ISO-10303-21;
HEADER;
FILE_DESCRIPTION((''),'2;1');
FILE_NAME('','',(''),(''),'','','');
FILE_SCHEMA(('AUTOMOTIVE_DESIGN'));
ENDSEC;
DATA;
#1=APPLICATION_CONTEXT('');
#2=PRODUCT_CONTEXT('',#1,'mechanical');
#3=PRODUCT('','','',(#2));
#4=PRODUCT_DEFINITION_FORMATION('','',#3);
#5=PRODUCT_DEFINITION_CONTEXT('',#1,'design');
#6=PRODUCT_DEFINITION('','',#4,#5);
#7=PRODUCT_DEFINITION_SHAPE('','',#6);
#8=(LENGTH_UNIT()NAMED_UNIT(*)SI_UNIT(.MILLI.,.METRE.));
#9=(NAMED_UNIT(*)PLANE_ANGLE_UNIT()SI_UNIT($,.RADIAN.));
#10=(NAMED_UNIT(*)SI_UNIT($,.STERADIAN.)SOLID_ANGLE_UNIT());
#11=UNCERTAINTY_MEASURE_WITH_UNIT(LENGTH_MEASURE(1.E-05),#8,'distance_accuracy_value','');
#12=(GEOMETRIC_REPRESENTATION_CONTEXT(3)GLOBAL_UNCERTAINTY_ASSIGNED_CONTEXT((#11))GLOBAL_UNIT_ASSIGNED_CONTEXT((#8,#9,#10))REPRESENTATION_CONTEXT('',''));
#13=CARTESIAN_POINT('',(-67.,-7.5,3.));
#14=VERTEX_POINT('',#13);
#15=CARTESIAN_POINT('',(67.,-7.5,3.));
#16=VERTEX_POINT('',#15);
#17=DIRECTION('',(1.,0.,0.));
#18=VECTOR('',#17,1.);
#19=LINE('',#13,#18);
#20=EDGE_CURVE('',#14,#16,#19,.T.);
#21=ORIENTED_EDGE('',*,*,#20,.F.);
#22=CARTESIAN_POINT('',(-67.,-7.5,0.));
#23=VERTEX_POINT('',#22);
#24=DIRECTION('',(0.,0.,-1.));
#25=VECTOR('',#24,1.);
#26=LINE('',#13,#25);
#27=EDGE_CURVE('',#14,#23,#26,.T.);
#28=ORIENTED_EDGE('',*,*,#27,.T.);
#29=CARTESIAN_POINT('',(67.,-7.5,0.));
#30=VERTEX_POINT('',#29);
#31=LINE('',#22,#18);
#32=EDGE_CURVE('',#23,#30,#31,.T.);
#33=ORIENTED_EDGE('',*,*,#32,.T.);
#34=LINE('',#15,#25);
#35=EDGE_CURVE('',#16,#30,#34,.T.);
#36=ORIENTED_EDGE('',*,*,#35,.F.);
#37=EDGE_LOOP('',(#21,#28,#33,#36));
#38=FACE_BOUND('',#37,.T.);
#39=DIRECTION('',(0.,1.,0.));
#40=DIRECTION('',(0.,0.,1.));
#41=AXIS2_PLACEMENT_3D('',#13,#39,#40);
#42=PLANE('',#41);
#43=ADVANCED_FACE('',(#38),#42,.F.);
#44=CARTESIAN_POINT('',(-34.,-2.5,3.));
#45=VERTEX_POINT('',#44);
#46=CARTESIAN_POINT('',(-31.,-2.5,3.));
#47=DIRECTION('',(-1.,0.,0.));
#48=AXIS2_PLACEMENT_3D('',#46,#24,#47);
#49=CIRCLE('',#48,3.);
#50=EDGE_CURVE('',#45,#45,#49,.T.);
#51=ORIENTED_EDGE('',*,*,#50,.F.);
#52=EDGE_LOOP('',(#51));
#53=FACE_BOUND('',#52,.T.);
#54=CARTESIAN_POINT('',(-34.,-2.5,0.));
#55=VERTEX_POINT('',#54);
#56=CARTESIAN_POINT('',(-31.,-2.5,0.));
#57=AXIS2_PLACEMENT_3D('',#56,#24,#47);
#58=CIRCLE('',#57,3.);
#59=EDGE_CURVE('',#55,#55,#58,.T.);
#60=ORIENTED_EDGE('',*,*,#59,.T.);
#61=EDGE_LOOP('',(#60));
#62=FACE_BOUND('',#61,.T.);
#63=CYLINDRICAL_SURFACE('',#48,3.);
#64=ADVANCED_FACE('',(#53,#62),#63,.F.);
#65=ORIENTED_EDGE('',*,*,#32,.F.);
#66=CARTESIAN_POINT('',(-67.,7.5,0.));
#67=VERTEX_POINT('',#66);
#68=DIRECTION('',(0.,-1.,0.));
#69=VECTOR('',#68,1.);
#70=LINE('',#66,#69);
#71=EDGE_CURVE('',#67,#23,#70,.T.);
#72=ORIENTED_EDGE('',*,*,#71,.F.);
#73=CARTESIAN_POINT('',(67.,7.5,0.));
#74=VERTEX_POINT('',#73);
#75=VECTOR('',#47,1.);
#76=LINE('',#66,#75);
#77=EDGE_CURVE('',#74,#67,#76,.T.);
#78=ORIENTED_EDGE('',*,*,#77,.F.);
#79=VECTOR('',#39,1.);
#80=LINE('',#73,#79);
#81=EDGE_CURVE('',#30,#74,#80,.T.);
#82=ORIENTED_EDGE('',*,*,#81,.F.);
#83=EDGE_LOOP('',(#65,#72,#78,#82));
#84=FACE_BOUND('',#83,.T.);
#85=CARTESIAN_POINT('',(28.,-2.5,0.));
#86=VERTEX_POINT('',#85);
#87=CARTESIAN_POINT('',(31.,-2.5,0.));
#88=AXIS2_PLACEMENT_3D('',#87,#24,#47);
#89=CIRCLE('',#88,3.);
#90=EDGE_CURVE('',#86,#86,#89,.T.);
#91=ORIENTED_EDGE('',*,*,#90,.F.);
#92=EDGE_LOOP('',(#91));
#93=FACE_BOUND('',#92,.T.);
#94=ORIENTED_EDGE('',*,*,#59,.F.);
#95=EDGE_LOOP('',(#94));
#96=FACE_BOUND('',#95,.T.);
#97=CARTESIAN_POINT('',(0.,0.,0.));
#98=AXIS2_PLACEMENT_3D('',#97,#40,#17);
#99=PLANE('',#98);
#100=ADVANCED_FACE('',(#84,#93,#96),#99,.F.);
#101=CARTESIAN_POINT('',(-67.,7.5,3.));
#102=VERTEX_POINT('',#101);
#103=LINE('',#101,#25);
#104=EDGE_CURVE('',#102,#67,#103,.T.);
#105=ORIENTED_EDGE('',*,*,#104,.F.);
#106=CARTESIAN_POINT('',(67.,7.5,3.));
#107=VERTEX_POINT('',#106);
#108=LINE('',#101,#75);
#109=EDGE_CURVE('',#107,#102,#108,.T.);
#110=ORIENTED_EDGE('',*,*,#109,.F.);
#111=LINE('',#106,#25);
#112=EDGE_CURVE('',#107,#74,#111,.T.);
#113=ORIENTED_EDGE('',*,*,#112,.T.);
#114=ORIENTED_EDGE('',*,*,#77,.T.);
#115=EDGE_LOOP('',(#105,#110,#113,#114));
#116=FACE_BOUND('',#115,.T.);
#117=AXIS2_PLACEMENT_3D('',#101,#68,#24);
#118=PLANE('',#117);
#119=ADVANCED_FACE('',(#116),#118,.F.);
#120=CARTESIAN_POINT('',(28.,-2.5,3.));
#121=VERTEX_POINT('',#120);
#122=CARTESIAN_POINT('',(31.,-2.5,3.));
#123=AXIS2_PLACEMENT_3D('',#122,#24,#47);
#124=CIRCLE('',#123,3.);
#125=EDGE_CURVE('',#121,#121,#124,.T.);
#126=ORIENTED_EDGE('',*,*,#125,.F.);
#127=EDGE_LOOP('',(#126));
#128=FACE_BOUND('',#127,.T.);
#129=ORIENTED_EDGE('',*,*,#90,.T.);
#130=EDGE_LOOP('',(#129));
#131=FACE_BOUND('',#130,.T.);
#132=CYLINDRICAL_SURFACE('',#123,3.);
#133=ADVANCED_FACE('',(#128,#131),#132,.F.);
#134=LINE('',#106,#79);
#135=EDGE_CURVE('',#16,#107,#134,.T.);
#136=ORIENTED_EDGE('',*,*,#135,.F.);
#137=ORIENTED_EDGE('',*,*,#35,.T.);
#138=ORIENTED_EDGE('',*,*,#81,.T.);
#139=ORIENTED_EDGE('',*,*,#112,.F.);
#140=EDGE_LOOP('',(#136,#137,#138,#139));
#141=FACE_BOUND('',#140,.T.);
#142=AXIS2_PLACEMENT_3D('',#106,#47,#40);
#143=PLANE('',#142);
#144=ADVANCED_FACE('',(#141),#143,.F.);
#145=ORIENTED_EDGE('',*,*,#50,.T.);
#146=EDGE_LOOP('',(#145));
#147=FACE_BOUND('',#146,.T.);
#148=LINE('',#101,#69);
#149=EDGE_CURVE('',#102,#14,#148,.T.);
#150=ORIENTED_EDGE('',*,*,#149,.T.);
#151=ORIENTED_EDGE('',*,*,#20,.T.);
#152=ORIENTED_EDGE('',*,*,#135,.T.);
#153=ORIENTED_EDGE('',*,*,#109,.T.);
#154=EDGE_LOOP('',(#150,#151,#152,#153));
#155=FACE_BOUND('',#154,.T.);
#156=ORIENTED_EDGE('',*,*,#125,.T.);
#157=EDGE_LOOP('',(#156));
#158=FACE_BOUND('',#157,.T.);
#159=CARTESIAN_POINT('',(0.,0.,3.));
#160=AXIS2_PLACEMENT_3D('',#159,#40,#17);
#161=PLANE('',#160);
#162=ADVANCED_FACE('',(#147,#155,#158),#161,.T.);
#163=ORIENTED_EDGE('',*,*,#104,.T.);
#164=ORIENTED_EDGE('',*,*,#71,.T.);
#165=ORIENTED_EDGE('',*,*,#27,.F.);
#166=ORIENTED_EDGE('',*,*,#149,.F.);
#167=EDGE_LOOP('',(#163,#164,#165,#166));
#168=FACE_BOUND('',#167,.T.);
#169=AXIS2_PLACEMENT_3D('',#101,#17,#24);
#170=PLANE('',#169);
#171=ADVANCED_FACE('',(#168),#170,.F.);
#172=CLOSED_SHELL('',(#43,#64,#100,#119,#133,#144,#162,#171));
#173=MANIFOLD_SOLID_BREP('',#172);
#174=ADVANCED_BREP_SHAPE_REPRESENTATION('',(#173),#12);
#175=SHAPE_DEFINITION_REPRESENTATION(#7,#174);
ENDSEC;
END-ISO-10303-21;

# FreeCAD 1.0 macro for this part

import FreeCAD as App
import Part
import Sketcher


def add_polygon(sketch, points):
    """Adds a closed chain of lines whose ends are joined by coincident constraints."""
    first, n = sketch.GeometryCount, len(points)
    for a, b in zip(points, points[1:] + points[:1]):
        sketch.addGeometry(Part.LineSegment(App.Vector(*a, 0), App.Vector(*b, 0)), False)
    for i in range(n):
        sketch.addConstraint(Sketcher.Constraint("Coincident", first + i, 2, first + (i + 1) % n, 1))

doc = App.newDocument("Part")
body = doc.addObject("PartDesign::Body", "Body")

# Sketch on XY plane
sketch1 = body.newObject("Sketcher::SketchObject", "Sketch")
sketch1.AttachmentSupport = (doc.getObject("XY_Plane"), [""])
sketch1.MapMode = "FlatFace"
add_polygon(sketch1, [(-67, 8), (-67, -8), (67, -8), (67, 8)])  # lines 0-3
sketch1.addConstraint([
    Sketcher.Constraint("Vertical", 0),
    Sketcher.Constraint("Horizontal", 1),
    Sketcher.Constraint("Vertical", 2),
    Sketcher.Constraint("Horizontal", 3),
    Sketcher.Constraint("Symmetric", 0, 2, 2, 2, -1, 1),
    Sketcher.Constraint("DistanceX", 1, 1, 1, 2, 134.0),
    Sketcher.Constraint("DistanceY", 0, 2, 0, 1, 15.0),
])
pad1 = body.newObject("PartDesign::Pad", "Pad")
pad1.Profile = sketch1
pad1.Length = 3

# Sketch on XY plane
sketch2 = body.newObject("Sketcher::SketchObject", "Sketch001")
sketch2.AttachmentSupport = (doc.getObject("XY_Plane"), [""])
sketch2.MapMode = "FlatFace"
sketch2.addGeometry(Part.Circle(App.Vector(31, -2.5, 0), App.Vector(0, 0, 1), 3), False)
sketch2.addConstraint([
    Sketcher.Constraint("Diameter", 0, 6.0),
    Sketcher.Constraint("DistanceX", -1, 1, 0, 3, 31.0),
    Sketcher.Constraint("DistanceY", 0, 3, -1, 1, 2.5),
])
pocket1 = body.newObject("PartDesign::Pocket", "Pocket")
pocket1.Profile = sketch2
pocket1.Length = 3
pocket1.Reversed = True

# Sketch on XY plane
sketch3 = body.newObject("Sketcher::SketchObject", "Sketch002")
sketch3.AttachmentSupport = (doc.getObject("XY_Plane"), [""])
sketch3.MapMode = "FlatFace"
sketch3.addGeometry(Part.Circle(App.Vector(-31, -2.5, 0), App.Vector(0, 0, 1), 3), False)
sketch3.addConstraint([
    Sketcher.Constraint("Diameter", 0, 6.0),
    Sketcher.Constraint("DistanceX", 0, 3, -1, 1, 31.0),
    Sketcher.Constraint("DistanceY", 0, 3, -1, 1, 2.5),
])
pocket2 = body.newObject("PartDesign::Pocket", "Pocket001")
pocket2.Profile = sketch3
pocket2.Length = 3
pocket2.Reversed = True

doc.recompute()
